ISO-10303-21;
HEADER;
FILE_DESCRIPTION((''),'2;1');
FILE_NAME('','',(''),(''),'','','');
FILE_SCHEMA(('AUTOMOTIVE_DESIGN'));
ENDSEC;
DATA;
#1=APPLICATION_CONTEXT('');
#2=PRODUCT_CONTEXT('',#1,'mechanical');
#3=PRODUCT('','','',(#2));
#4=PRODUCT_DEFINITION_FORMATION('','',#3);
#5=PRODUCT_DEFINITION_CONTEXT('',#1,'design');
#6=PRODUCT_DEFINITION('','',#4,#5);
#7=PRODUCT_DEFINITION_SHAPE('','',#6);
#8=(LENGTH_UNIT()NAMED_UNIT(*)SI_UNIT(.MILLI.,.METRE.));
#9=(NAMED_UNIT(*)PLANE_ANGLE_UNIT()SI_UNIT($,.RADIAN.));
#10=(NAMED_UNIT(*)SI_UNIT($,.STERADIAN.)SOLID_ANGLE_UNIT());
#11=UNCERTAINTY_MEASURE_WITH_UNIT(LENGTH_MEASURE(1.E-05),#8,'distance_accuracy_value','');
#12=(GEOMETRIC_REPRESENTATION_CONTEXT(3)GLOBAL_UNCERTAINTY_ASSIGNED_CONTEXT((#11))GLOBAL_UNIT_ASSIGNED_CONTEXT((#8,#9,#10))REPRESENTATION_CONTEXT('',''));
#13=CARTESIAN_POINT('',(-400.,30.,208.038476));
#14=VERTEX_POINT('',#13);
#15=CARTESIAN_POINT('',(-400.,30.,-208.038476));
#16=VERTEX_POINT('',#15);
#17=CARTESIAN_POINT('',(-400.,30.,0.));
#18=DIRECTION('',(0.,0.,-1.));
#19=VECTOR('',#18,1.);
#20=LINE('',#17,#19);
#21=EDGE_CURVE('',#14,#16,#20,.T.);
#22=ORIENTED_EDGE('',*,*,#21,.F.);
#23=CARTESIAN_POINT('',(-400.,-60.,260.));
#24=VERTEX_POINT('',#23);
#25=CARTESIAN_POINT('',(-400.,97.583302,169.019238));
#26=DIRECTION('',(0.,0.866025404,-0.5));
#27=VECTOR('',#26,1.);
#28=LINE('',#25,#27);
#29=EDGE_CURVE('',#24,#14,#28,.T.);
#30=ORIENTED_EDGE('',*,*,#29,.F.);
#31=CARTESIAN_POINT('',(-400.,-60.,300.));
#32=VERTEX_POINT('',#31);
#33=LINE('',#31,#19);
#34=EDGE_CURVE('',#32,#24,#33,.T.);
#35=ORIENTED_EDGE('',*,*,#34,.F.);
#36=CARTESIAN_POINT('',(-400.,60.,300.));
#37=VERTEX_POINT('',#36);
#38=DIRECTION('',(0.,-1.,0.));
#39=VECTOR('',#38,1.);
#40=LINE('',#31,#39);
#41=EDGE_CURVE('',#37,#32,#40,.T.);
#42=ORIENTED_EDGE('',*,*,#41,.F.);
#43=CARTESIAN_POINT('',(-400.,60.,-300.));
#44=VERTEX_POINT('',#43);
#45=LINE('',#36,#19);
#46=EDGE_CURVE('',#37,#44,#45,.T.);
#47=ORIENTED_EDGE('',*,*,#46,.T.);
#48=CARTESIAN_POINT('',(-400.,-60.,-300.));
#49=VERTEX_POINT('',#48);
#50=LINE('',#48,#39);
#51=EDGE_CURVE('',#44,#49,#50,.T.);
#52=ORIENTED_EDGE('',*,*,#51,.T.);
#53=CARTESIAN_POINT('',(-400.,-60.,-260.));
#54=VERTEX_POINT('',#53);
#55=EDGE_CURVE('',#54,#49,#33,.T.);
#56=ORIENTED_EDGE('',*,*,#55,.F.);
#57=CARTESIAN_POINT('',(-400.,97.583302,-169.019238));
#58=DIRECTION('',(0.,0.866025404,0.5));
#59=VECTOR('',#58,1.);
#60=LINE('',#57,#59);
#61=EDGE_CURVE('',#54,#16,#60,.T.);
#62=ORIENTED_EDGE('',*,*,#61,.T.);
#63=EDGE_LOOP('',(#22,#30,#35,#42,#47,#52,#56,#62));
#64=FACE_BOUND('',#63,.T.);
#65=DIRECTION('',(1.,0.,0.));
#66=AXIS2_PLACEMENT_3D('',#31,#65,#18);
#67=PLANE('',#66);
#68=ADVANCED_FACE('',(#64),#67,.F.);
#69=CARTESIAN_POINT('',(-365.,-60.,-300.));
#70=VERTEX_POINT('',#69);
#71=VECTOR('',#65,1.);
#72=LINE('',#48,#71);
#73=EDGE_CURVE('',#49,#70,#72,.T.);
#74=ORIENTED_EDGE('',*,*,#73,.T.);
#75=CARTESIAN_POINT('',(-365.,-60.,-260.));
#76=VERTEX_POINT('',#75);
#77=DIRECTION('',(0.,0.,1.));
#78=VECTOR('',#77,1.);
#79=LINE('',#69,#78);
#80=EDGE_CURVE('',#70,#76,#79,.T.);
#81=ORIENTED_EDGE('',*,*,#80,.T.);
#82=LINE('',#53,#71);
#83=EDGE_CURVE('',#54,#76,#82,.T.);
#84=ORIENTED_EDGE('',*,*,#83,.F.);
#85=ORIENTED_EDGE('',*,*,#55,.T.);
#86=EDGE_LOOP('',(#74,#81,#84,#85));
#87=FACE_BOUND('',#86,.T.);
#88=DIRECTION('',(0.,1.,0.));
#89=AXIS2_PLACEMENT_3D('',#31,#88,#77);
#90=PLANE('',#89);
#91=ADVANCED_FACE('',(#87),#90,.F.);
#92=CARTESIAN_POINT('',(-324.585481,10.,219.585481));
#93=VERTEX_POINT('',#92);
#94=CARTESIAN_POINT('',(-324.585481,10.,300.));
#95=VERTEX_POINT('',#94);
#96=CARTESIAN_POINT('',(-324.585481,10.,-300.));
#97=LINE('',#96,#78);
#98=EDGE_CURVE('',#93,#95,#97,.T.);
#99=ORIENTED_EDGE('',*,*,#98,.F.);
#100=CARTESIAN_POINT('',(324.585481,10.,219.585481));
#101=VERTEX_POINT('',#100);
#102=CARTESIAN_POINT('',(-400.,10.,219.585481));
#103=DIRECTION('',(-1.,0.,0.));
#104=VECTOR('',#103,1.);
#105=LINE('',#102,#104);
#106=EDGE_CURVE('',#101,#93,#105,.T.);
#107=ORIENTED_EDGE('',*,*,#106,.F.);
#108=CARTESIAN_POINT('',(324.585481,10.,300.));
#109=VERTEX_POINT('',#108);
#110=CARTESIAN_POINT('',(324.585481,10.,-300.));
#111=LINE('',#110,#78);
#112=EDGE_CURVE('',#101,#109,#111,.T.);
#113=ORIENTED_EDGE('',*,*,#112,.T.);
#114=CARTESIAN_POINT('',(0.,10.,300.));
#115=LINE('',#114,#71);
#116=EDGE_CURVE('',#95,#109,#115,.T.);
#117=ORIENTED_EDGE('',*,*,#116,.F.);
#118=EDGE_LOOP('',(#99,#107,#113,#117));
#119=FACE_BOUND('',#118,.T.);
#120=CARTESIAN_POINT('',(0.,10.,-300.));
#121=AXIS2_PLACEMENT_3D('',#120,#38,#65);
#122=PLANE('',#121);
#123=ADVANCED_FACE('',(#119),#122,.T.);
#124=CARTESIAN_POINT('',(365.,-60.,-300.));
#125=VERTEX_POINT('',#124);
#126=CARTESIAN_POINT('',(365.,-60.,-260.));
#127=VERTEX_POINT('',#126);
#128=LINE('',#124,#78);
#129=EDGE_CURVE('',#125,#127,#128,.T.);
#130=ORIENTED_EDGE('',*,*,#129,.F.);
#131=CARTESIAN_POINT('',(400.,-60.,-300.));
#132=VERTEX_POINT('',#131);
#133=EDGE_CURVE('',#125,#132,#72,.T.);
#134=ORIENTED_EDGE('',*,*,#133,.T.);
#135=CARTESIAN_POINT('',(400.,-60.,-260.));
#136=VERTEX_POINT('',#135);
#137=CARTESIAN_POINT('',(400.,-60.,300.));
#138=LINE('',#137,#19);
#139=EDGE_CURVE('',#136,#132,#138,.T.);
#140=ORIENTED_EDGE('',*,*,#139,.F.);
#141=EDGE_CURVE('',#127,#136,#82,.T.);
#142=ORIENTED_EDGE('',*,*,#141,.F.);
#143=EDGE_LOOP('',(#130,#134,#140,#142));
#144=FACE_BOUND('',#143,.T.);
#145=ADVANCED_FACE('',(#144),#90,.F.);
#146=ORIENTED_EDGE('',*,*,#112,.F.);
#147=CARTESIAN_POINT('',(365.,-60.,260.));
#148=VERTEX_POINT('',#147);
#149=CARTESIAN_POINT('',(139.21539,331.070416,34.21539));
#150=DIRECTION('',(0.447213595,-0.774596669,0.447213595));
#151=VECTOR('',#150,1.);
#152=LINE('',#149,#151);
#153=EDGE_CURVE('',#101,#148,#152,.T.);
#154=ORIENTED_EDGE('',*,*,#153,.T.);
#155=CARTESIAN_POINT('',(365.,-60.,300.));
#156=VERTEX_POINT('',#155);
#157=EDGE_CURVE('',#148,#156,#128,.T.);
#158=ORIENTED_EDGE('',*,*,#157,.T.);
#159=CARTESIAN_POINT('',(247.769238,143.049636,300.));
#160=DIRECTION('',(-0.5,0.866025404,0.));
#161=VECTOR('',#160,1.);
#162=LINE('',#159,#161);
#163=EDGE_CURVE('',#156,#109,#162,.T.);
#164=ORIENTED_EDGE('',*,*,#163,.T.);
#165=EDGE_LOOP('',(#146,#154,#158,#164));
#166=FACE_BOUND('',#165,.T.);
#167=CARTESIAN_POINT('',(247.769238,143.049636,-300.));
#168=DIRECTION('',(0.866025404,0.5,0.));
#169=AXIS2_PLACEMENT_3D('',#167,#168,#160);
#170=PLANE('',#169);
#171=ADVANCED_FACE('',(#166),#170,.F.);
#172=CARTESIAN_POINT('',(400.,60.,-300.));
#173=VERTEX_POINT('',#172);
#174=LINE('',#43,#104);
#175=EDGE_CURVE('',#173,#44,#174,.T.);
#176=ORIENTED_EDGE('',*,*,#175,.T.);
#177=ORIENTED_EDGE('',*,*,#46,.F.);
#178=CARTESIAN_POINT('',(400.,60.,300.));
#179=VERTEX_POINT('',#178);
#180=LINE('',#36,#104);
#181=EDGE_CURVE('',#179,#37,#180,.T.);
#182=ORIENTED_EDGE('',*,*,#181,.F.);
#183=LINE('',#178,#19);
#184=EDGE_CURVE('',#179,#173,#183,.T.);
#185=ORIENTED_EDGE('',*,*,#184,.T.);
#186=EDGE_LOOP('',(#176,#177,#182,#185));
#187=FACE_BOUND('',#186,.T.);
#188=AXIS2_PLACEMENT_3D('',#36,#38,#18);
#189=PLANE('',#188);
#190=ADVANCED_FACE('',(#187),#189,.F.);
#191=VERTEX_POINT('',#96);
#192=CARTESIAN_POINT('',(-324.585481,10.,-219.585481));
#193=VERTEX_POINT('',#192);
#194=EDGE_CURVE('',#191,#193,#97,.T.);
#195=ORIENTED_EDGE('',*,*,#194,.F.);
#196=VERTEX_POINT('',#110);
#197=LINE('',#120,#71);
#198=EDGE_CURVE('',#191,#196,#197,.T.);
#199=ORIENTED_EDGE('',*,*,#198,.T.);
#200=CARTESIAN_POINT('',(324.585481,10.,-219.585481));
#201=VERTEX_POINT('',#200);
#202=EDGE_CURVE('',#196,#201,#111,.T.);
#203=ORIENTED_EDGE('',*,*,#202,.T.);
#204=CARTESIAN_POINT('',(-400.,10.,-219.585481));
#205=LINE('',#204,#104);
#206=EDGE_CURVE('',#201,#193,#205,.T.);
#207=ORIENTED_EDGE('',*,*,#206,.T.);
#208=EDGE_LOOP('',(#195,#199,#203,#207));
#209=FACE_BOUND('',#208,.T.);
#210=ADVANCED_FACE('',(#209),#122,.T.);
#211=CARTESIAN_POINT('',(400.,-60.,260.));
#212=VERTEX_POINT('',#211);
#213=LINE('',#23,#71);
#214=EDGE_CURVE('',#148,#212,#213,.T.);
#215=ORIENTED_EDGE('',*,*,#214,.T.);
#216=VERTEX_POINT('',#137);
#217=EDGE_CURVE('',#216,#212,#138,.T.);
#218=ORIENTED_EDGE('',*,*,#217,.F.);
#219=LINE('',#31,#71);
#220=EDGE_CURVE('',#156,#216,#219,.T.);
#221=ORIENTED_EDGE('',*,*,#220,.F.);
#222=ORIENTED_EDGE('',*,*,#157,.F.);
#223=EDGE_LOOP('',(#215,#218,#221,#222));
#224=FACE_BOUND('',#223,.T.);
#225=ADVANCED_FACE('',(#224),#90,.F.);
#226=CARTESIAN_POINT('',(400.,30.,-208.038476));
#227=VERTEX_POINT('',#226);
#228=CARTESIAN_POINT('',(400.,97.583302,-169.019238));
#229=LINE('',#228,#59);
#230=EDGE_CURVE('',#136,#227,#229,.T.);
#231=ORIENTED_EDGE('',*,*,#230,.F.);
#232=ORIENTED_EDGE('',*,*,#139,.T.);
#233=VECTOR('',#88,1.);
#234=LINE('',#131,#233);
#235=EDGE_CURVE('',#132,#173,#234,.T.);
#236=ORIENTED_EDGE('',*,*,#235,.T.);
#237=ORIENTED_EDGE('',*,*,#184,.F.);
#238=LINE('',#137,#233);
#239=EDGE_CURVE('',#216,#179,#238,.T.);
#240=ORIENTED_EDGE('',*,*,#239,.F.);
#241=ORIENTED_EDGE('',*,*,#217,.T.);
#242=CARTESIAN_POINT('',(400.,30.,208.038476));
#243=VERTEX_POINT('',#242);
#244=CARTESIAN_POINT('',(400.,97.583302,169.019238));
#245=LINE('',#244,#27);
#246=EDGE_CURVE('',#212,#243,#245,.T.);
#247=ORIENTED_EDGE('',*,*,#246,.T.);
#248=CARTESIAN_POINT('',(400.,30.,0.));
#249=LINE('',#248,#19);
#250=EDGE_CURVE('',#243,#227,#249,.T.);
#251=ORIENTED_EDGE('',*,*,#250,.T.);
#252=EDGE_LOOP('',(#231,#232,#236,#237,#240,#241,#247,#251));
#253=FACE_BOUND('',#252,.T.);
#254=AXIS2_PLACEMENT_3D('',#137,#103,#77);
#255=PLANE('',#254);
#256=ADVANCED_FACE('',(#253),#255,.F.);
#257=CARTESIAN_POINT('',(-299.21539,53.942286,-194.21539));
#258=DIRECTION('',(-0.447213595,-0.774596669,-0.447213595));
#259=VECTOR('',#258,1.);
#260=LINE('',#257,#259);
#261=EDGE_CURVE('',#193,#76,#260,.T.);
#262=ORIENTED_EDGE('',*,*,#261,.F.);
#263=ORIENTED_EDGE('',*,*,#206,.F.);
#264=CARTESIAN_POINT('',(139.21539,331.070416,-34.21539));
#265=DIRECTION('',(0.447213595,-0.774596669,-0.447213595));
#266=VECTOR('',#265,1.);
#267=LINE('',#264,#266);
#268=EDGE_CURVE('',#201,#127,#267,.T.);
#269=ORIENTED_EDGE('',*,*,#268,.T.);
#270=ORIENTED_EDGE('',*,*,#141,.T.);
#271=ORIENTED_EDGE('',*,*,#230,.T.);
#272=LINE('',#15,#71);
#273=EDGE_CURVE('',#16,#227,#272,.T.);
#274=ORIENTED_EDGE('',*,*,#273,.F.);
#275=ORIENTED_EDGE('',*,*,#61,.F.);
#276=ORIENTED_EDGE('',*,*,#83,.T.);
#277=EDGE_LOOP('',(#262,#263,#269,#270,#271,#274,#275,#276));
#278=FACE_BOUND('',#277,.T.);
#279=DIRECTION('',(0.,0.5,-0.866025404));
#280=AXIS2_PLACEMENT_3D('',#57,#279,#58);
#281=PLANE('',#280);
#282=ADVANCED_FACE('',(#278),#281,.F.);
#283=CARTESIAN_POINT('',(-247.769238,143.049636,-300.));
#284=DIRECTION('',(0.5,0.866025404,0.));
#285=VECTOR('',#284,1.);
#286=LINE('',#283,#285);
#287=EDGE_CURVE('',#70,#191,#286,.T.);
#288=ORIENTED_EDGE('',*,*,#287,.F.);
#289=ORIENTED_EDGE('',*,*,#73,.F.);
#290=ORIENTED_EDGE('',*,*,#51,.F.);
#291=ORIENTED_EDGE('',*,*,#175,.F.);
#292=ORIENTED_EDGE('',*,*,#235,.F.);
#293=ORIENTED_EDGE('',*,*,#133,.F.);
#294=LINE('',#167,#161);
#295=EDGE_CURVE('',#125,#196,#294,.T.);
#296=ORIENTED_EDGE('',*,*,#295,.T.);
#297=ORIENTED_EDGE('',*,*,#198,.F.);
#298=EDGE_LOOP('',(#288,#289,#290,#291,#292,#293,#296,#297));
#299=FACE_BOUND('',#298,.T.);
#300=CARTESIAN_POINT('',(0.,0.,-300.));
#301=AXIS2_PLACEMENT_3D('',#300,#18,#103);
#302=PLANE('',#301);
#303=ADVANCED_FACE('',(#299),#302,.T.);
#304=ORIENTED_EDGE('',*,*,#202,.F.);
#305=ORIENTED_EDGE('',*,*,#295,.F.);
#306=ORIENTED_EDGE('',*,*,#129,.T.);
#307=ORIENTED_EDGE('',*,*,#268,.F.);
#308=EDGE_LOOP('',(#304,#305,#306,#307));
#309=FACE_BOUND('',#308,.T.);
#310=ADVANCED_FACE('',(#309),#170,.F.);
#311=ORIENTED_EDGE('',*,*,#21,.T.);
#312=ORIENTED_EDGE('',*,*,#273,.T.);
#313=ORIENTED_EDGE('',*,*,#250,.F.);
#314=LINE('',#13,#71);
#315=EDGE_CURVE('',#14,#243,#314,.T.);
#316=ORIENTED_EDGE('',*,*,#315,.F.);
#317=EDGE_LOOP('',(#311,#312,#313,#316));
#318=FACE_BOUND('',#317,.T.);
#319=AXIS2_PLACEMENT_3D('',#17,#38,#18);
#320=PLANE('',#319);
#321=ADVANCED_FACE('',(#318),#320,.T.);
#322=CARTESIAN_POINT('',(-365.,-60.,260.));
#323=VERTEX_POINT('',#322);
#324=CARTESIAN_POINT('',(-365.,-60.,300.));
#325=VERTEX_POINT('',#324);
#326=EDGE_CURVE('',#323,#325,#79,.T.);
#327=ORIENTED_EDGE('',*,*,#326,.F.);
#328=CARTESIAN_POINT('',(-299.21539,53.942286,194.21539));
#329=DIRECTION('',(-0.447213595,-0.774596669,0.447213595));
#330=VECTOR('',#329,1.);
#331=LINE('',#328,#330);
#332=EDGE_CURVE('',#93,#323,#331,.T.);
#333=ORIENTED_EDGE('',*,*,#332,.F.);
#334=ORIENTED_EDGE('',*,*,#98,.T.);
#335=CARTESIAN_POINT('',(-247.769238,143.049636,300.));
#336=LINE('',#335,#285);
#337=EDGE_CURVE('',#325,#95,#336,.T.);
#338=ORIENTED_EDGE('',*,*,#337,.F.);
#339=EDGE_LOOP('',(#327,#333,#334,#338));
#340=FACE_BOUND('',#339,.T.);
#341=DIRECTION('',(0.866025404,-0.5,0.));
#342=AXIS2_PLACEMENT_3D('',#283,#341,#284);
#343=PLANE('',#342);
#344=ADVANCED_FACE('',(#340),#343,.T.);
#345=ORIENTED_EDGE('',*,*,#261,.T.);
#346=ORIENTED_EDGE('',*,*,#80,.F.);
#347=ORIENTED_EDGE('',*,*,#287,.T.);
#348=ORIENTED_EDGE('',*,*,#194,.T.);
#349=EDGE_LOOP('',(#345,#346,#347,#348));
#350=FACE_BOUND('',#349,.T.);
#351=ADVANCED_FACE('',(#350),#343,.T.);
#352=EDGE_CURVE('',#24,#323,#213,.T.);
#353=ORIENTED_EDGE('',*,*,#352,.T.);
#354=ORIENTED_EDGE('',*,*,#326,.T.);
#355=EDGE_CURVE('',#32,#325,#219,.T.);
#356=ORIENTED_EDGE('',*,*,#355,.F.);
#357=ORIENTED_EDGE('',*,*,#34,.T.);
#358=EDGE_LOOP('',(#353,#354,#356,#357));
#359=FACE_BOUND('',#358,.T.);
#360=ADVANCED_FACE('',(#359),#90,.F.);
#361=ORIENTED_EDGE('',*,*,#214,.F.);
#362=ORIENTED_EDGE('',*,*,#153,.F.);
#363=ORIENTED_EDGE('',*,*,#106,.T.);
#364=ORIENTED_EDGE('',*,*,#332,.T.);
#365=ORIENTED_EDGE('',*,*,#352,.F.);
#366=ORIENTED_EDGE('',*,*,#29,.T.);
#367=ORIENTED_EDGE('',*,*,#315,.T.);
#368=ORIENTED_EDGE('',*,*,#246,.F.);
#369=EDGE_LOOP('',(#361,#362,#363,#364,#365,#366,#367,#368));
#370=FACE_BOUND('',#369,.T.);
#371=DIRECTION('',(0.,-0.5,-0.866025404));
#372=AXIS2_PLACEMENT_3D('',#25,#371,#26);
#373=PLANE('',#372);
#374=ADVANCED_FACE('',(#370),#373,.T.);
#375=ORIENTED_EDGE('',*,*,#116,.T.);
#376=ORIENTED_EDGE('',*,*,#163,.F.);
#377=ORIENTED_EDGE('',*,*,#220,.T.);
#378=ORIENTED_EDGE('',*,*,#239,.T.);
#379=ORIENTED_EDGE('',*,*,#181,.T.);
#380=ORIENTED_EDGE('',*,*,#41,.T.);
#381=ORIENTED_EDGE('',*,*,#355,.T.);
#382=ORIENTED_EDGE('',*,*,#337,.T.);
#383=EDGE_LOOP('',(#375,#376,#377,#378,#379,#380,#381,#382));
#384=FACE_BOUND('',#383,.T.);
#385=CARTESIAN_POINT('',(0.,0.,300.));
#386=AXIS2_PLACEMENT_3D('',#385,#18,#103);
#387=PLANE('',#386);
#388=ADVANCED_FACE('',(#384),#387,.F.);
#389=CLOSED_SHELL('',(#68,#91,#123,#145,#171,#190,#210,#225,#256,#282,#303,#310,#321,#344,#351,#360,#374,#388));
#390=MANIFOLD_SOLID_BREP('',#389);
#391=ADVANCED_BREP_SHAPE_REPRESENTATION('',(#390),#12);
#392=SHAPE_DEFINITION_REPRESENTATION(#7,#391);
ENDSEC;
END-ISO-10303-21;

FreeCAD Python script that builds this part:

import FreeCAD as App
import Part
import Sketcher

V = App.Vector
Q = App.Units.Quantity

doc = App.newDocument("Part")
params = doc.addObject("Spreadsheet::Sheet", "Params")
for row, (alias, value) in enumerate([
    ("sketch1_width", "800 mm"),
    ("sketch1_height", "120 mm"),
    ("pad1_length", "600 mm"),
    ("sketch2_height", "520 mm"),
    ("sketch3_width", "730 mm"),
    ("pocket2_length", "600 mm"),
], start=1):
    params.set(f"A{row}", alias)
    params.set(f"B{row}", "=" + value)
    params.setAlias(f"B{row}", alias)

body = doc.addObject("PartDesign::Body", "Body")

sketch1 = body.newObject("Sketcher::SketchObject", "Sketch")
sketch1.AttachmentSupport = (doc.getObject("XY_Plane"), [""])
sketch1.MapMode = "FlatFace"
sketch1.addGeometry([
    Part.LineSegment(V(-400, 60, 0), V(-400, -60, 0)),
    Part.LineSegment(V(-400, -60, 0), V(400, -60, 0)),
    Part.LineSegment(V(400, -60, 0), V(400, 60, 0)),
    Part.LineSegment(V(400, 60, 0), V(-400, 60, 0)),
], False)
sketch1.addConstraint([
    Sketcher.Constraint("Coincident", 0, 2, 1, 1),
    Sketcher.Constraint("Coincident", 1, 2, 2, 1),
    Sketcher.Constraint("Coincident", 2, 2, 3, 1),
    Sketcher.Constraint("Coincident", 3, 2, 0, 1),
    Sketcher.Constraint("Vertical", 0),
    Sketcher.Constraint("Horizontal", 1),
    Sketcher.Constraint("Vertical", 2),
    Sketcher.Constraint("Horizontal", 3),
    Sketcher.Constraint("Symmetric", 0, 2, 2, 2, -1, 1),
    Sketcher.Constraint("DistanceX", 1, 1, 1, 2, Q("800 mm")),
    Sketcher.Constraint("DistanceY", 0, 2, 0, 1, Q("120 mm")),
])
sketch1.setExpression("Constraints[9]", "Params.sketch1_width")
sketch1.setExpression("Constraints[10]", "Params.sketch1_height")
pad1 = body.newObject("PartDesign::Pad", "Pad")
pad1.Profile = sketch1
pad1.setExpression("Length", "Params.pad1_length")
pad1.Midplane = True

sketch2 = body.newObject("Sketcher::SketchObject", "Sketch001")
sketch2.AttachmentSupport = (doc.getObject("YZ_Plane"), [""])
sketch2.MapMode = "FlatFace"
sketch2.AttachmentOffset = App.Placement(V(0, 0, 400), App.Rotation())
sketch2.addGeometry([
    Part.LineSegment(V(30, 208, 0), V(-60, 260, 0)),
    Part.LineSegment(V(-60, 260, 0), V(-60, -260, 0)),
    Part.LineSegment(V(-60, -260, 0), V(30, -208, 0)),
    Part.LineSegment(V(30, -208, 0), V(30, 208, 0)),
], False)
sketch2.addConstraint([
    Sketcher.Constraint("Coincident", 0, 2, 1, 1),
    Sketcher.Constraint("Coincident", 1, 2, 2, 1),
    Sketcher.Constraint("Coincident", 2, 2, 3, 1),
    Sketcher.Constraint("Coincident", 3, 2, 0, 1),
    Sketcher.Constraint("Vertical", 1),
    Sketcher.Constraint("Vertical", 3),
    Sketcher.Constraint("Equal", 0, 2),
    Sketcher.Constraint("DistanceY", 1, 2, 1, 1, Q("520 mm")),
    Sketcher.Constraint("Angle", 0, Q("150 deg")),
    Sketcher.Constraint("DistanceX", 0, 2, -1, 1, Q("60 mm")),
    Sketcher.Constraint("DistanceY", -1, 1, 0, 2, Q("260 mm")),
    Sketcher.Constraint("DistanceX", -1, 1, 2, 2, Q("30 mm")),
])
sketch2.setExpression("Constraints[7]", "Params.sketch2_height")
pocket1 = body.newObject("PartDesign::Pocket", "Pocket")
pocket1.Profile = sketch2
pocket1.Type = "ThroughAll"

sketch3 = body.newObject("Sketcher::SketchObject", "Sketch002")
sketch3.AttachmentSupport = (doc.getObject("XY_Plane"), [""])
sketch3.MapMode = "FlatFace"
sketch3.AttachmentOffset = App.Placement(V(0, 0, 300), App.Rotation())
sketch3.addGeometry([
    Part.LineSegment(V(-325, 10, 0), V(-365, -60, 0)),
    Part.LineSegment(V(-365, -60, 0), V(365, -60, 0)),
    Part.LineSegment(V(365, -60, 0), V(325, 10, 0)),
    Part.LineSegment(V(325, 10, 0), V(-325, 10, 0)),
], False)
sketch3.addConstraint([
    Sketcher.Constraint("Coincident", 0, 2, 1, 1),
    Sketcher.Constraint("Coincident", 1, 2, 2, 1),
    Sketcher.Constraint("Coincident", 2, 2, 3, 1),
    Sketcher.Constraint("Coincident", 3, 2, 0, 1),
    Sketcher.Constraint("Horizontal", 1),
    Sketcher.Constraint("Horizontal", 3),
    Sketcher.Constraint("Equal", 0, 2),
    Sketcher.Constraint("DistanceX", 1, 1, 1, 2, Q("730 mm")),
    Sketcher.Constraint("Angle", 0, Q("-120 deg")),
    Sketcher.Constraint("DistanceX", 0, 2, -1, 1, Q("365 mm")),
    Sketcher.Constraint("DistanceY", 0, 2, -1, 1, Q("60 mm")),
    Sketcher.Constraint("DistanceY", -1, 1, 2, 2, Q("10 mm")),
])
sketch3.setExpression("Constraints[7]", "Params.sketch3_width")
pocket2 = body.newObject("PartDesign::Pocket", "Pocket001")
pocket2.Profile = sketch3
pocket2.setExpression("Length", "Params.pocket2_length")

doc.recompute()
